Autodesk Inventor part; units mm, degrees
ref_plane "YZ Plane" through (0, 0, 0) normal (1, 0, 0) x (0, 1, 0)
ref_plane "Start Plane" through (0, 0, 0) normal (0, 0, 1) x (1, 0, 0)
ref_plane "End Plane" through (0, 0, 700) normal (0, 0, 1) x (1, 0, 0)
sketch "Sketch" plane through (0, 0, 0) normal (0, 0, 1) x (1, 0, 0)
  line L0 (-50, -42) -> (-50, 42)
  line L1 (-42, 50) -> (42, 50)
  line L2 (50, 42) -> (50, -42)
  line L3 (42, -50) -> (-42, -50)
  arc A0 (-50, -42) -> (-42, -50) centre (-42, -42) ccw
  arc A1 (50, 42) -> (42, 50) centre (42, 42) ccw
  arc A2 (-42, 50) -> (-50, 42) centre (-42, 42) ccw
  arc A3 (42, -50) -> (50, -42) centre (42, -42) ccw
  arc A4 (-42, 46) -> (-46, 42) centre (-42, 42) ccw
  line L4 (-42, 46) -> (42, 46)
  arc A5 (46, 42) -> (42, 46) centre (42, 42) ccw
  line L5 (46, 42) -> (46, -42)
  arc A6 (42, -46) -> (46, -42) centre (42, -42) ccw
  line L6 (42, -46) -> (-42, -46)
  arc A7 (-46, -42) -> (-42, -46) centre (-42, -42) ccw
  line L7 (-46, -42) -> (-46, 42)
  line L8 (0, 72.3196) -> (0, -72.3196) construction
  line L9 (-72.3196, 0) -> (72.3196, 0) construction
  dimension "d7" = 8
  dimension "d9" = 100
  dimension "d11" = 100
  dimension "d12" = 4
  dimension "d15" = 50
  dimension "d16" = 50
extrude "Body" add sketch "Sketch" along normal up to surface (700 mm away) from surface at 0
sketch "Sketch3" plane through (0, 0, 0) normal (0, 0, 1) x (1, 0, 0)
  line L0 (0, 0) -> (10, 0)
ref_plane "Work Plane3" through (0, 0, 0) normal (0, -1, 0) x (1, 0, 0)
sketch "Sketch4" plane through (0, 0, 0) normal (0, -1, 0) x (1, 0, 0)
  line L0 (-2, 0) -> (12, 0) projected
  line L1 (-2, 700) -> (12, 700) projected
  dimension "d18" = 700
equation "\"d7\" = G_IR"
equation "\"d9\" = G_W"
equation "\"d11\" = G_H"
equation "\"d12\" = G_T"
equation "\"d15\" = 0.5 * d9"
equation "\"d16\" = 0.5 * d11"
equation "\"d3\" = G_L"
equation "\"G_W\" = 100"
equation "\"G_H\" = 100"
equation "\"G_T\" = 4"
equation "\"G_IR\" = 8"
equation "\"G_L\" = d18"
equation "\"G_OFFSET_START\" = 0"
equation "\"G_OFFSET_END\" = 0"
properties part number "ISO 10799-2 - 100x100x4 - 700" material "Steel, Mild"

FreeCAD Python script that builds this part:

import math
import FreeCAD as App
import Part
import Sketcher
Q = App.Units.Quantity

doc = App.newDocument("Part")
body = doc.addObject("PartDesign::Body", "Body")

# Sketch on XY plane
sketch1 = doc.addObject("Sketcher::SketchObject", "Sketch")
body.addObject(sketch1)
sketch1.AttachmentSupport = (doc.XY_Plane, [""])
sketch1.MapMode = "FlatFace"
sketch1.addGeometry([
    Part.LineSegment(App.Vector(-50, 42, 0), App.Vector(-50, -42, 0)),  # 0
    Part.ArcOfCircle(Part.Circle(App.Vector(-42, -42, 0), App.Vector(0, 0, 1), 8), math.radians(180), math.radians(270)),  # 1
    Part.LineSegment(App.Vector(-42, -50, 0), App.Vector(42, -50, 0)),  # 2
    Part.ArcOfCircle(Part.Circle(App.Vector(42, -42, 0), App.Vector(0, 0, 1), 8), math.radians(-90), math.radians(0)),  # 3
    Part.LineSegment(App.Vector(50, -42, 0), App.Vector(50, 42, 0)),  # 4
    Part.ArcOfCircle(Part.Circle(App.Vector(42, 42, 0), App.Vector(0, 0, 1), 8), math.radians(0), math.radians(90)),  # 5
    Part.LineSegment(App.Vector(42, 50, 0), App.Vector(-42, 50, 0)),  # 6
    Part.ArcOfCircle(Part.Circle(App.Vector(-42, 42, 0), App.Vector(0, 0, 1), 8), math.radians(90), math.radians(180)),  # 7
    Part.ArcOfCircle(Part.Circle(App.Vector(-42, 42, 0), App.Vector(0, 0, 1), 4), math.radians(90), math.radians(180)),  # 8
    Part.LineSegment(App.Vector(-42, 46, 0), App.Vector(42, 46, 0)),  # 9
    Part.ArcOfCircle(Part.Circle(App.Vector(42, 42, 0), App.Vector(0, 0, 1), 4), math.radians(0), math.radians(90)),  # 10
    Part.LineSegment(App.Vector(46, 42, 0), App.Vector(46, -42, 0)),  # 11
    Part.ArcOfCircle(Part.Circle(App.Vector(42, -42, 0), App.Vector(0, 0, 1), 4), math.radians(-90), math.radians(0)),  # 12
    Part.LineSegment(App.Vector(42, -46, 0), App.Vector(-42, -46, 0)),  # 13
    Part.ArcOfCircle(Part.Circle(App.Vector(-42, -42, 0), App.Vector(0, 0, 1), 4), math.radians(180), math.radians(270)),  # 14
    Part.LineSegment(App.Vector(-46, -42, 0), App.Vector(-46, 42, 0)),  # 15
], False)
sketch1.addConstraint([
    Sketcher.Constraint("Tangent", 0, 2, 1, 1),
    Sketcher.Constraint("Tangent", 1, 2, 2, 1),
    Sketcher.Constraint("Tangent", 2, 2, 3, 1),
    Sketcher.Constraint("Tangent", 3, 2, 4, 1),
    Sketcher.Constraint("Tangent", 4, 2, 5, 1),
    Sketcher.Constraint("Tangent", 5, 2, 6, 1),
    Sketcher.Constraint("Tangent", 6, 2, 7, 1),
    Sketcher.Constraint("Tangent", 7, 2, 0, 1),
    Sketcher.Constraint("Tangent", 8, 1, 9, 1),
    Sketcher.Constraint("Tangent", 9, 2, 10, 2),
    Sketcher.Constraint("Tangent", 10, 1, 11, 1),
    Sketcher.Constraint("Tangent", 11, 2, 12, 2),
    Sketcher.Constraint("Tangent", 12, 1, 13, 1),
    Sketcher.Constraint("Tangent", 13, 2, 14, 2),
    Sketcher.Constraint("Tangent", 14, 1, 15, 1),
    Sketcher.Constraint("Tangent", 15, 2, 8, 2),
    Sketcher.Constraint("Vertical", 0),
    Sketcher.Constraint("Horizontal", 2),
    Sketcher.Constraint("Vertical", 4),
    Sketcher.Constraint("Horizontal", 6),
    Sketcher.Constraint("Horizontal", 9),
    Sketcher.Constraint("Vertical", 11),
    Sketcher.Constraint("Horizontal", 13),
    Sketcher.Constraint("Vertical", 15),
    Sketcher.Constraint("Coincident", 8, 3, 7, 3),
    Sketcher.Constraint("Coincident", 10, 3, 5, 3),
    Sketcher.Constraint("Coincident", 12, 3, 3, 3),
    Sketcher.Constraint("Equal", 1, 3),
    Sketcher.Constraint("Equal", 3, 5),
    Sketcher.Constraint("Equal", 5, 7),
    Sketcher.Constraint("Equal", 12, 14),
    Sketcher.Constraint("Symmetric", 1, 3, 5, 3, -1, 1),
    Sketcher.Constraint("Equal", 13, 0),
    Sketcher.Constraint("Radius", 1, Q("8 mm")),
    Sketcher.Constraint("Radius", 8, Q("4 mm")),
    Sketcher.Constraint("DistanceX", 0, 2, -1, 1, Q("50 mm")),
])
pad1 = doc.addObject("PartDesign::Pad", "Pad")
body.addObject(pad1)
pad1.Profile = sketch1
pad1.Length = 700

doc.recompute()
